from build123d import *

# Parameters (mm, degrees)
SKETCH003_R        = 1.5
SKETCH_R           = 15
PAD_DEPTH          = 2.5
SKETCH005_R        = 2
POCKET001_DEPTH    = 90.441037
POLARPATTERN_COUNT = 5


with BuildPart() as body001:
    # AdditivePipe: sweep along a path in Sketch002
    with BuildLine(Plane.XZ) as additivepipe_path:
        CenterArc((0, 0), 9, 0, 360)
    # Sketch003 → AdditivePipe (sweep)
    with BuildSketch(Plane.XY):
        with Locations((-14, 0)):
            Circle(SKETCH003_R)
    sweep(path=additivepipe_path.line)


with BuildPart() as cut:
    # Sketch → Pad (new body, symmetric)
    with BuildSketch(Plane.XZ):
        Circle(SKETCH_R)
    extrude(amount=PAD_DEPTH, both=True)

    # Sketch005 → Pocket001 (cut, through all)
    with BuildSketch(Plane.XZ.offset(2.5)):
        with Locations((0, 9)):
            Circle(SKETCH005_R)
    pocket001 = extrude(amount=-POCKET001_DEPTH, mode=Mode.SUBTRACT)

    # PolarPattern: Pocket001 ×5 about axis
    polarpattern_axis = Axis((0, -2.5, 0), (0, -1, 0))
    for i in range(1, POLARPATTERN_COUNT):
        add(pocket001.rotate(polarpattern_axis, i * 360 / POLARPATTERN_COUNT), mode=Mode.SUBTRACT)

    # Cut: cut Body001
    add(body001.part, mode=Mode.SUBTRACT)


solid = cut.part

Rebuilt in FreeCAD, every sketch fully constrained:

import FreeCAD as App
import Part
import Sketcher
Q = App.Units.Quantity

doc = App.newDocument("Part")
body = doc.addObject("PartDesign::Body", "Body")

sketch1 = body.newObject("Sketcher::SketchObject", "Sketch")
sketch1.AttachmentSupport = (doc.getObject("XY_Plane"), [""])
sketch1.MapMode = "FlatFace"
sketch1.addGeometry(Part.Circle(App.Vector(-14, 0, 0), App.Vector(0, 0, 1), 1.5), False)
sketch1.addConstraint(Sketcher.Constraint("PointOnObject", 0, 3, -1))
sketch1.addConstraint(Sketcher.Constraint("Diameter", 0, Q("3 mm")))
sketch1.addConstraint(Sketcher.Constraint("DistanceX", 0, 3, -1, 1, Q("14 mm")))

sketch2 = body.newObject("Sketcher::SketchObject", "Sketch001")
sketch2.AttachmentSupport = (doc.getObject("XZ_Plane"), [""])
sketch2.MapMode = "FlatFace"
sketch2.addGeometry(Part.Circle(App.Vector(0, 0, 0), App.Vector(0, 0, 1), 9), False)
sketch2.addConstraint(Sketcher.Constraint("Coincident", 0, 3, -1, 1))
sketch2.addConstraint(Sketcher.Constraint("Diameter", 0, Q("18 mm")))
doc.recompute()

additivepipe = body.newObject("PartDesign::AdditivePipe", "AdditivePipe")
additivepipe.Profile = sketch1
additivepipe.Spine = (sketch2, ["Edge1"])
body2 = doc.addObject("PartDesign::Body", "Body001")

sketch3 = body2.newObject("Sketcher::SketchObject", "Sketch002")
sketch3.AttachmentSupport = (doc.getObject("XZ_Plane001"), [""])
sketch3.MapMode = "FlatFace"
sketch3.addGeometry(Part.Circle(App.Vector(0, 0, 0), App.Vector(0, 0, 1), 15), False)
sketch3.addConstraint(Sketcher.Constraint("Coincident", 0, 3, -1, 1))
sketch3.addConstraint(Sketcher.Constraint("Diameter", 0, Q("30 mm")))
pad1 = body2.newObject("PartDesign::Pad", "Pad")
pad1.Profile = sketch3
pad1.Length = 5
pad1.Midplane = True

sketch4 = body2.newObject("Sketcher::SketchObject", "Sketch003")
sketch4.AttachmentSupport = (doc.getObject("XZ_Plane001"), [""])
sketch4.MapMode = "FlatFace"
sketch4.AttachmentOffset = App.Placement(App.Vector(0, 0, 2.5), App.Rotation())
sketch4.addGeometry(Part.Circle(App.Vector(0, 9, 0), App.Vector(0, 0, 1), 2), False)
sketch4.addConstraint(Sketcher.Constraint("PointOnObject", 0, 3, -2))
sketch4.addConstraint(Sketcher.Constraint("Diameter", 0, Q("4 mm")))
sketch4.addConstraint(Sketcher.Constraint("DistanceY", -1, 1, 0, 3, Q("9 mm")))
pocket1 = body2.newObject("PartDesign::Pocket", "Pocket")
pocket1.Profile = sketch4
pocket1.Type = "ThroughAll"
doc.recompute()

polarpattern = body2.newObject("PartDesign::PolarPattern", "PolarPattern")
polarpattern.Originals = [pocket1]
polarpattern.Axis = (doc.getObject("Y_Axis001"), [""])
polarpattern.Angle = 360
polarpattern.Occurrences = 5
body2.Tip = polarpattern
doc.recompute()

boolean = body2.newObject("PartDesign::Boolean", "Boolean")
boolean.Type = "Cut"
boolean.addObjects([body])

doc.recompute()
